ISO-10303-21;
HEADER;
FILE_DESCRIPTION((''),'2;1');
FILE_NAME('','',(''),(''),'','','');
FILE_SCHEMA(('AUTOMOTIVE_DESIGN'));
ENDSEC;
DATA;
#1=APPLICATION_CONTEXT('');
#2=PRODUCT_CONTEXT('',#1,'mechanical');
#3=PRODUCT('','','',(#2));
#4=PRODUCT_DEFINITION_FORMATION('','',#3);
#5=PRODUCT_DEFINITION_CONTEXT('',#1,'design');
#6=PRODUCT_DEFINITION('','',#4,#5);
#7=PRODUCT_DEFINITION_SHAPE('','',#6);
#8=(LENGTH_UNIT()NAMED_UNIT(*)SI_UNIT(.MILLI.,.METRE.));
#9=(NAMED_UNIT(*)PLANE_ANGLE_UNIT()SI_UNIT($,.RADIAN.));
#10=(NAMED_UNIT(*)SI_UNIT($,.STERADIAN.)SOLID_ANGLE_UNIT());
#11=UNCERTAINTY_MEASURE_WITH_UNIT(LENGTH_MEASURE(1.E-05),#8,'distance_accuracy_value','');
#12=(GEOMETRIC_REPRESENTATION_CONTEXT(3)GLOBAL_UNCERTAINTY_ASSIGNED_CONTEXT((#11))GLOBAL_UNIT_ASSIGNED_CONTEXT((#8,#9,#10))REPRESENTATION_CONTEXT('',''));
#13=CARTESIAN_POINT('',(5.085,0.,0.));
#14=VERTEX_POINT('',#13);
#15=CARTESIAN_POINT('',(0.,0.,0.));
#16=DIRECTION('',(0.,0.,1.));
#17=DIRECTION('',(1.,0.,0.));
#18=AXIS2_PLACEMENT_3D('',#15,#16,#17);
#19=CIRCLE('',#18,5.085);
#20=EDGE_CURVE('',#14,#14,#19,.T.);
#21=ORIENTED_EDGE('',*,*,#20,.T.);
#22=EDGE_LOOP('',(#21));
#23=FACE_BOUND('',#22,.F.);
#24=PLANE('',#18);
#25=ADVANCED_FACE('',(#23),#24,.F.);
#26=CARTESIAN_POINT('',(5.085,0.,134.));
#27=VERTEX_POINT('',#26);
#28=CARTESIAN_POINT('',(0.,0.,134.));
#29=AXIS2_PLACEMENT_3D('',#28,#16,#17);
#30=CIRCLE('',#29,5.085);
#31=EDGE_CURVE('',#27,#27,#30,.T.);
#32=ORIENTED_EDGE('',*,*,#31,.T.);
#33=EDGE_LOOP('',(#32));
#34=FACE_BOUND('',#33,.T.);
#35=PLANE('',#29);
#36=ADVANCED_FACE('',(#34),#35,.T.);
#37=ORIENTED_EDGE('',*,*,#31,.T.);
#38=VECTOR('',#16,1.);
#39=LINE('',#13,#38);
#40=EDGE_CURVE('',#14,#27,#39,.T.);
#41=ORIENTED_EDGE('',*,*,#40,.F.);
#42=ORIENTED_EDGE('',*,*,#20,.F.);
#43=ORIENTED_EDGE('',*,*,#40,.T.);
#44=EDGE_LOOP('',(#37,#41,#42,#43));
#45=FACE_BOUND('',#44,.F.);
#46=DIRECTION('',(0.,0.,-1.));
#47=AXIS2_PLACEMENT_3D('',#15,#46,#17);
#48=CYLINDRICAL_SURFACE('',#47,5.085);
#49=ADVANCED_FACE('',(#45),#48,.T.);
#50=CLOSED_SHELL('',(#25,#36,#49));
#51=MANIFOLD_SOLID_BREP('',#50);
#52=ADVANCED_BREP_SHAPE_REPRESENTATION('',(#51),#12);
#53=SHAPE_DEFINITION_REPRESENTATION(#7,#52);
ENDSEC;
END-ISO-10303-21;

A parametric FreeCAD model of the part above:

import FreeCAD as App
import Part
import Sketcher
Q = App.Units.Quantity

doc = App.newDocument("Part")
body = doc.addObject("PartDesign::Body", "Body")

# Sketch on XY plane
sketch1 = doc.addObject("Sketcher::SketchObject", "Sketch")
body.addObject(sketch1)
sketch1.AttachmentSupport = (doc.XY_Plane, [""])
sketch1.MapMode = "FlatFace"
sketch1.addGeometry(Part.Circle(App.Vector(0, 0, 0), App.Vector(0, 0, 1), 5), False)
sketch1.addConstraint([
    Sketcher.Constraint("Coincident", 0, 3, -1, 1),
    Sketcher.Constraint("Diameter", 0, Q("10.17 mm")),
])
pad1 = doc.addObject("PartDesign::Pad", "Pad")
body.addObject(pad1)
pad1.Profile = sketch1
pad1.Length = 134

doc.recompute()
